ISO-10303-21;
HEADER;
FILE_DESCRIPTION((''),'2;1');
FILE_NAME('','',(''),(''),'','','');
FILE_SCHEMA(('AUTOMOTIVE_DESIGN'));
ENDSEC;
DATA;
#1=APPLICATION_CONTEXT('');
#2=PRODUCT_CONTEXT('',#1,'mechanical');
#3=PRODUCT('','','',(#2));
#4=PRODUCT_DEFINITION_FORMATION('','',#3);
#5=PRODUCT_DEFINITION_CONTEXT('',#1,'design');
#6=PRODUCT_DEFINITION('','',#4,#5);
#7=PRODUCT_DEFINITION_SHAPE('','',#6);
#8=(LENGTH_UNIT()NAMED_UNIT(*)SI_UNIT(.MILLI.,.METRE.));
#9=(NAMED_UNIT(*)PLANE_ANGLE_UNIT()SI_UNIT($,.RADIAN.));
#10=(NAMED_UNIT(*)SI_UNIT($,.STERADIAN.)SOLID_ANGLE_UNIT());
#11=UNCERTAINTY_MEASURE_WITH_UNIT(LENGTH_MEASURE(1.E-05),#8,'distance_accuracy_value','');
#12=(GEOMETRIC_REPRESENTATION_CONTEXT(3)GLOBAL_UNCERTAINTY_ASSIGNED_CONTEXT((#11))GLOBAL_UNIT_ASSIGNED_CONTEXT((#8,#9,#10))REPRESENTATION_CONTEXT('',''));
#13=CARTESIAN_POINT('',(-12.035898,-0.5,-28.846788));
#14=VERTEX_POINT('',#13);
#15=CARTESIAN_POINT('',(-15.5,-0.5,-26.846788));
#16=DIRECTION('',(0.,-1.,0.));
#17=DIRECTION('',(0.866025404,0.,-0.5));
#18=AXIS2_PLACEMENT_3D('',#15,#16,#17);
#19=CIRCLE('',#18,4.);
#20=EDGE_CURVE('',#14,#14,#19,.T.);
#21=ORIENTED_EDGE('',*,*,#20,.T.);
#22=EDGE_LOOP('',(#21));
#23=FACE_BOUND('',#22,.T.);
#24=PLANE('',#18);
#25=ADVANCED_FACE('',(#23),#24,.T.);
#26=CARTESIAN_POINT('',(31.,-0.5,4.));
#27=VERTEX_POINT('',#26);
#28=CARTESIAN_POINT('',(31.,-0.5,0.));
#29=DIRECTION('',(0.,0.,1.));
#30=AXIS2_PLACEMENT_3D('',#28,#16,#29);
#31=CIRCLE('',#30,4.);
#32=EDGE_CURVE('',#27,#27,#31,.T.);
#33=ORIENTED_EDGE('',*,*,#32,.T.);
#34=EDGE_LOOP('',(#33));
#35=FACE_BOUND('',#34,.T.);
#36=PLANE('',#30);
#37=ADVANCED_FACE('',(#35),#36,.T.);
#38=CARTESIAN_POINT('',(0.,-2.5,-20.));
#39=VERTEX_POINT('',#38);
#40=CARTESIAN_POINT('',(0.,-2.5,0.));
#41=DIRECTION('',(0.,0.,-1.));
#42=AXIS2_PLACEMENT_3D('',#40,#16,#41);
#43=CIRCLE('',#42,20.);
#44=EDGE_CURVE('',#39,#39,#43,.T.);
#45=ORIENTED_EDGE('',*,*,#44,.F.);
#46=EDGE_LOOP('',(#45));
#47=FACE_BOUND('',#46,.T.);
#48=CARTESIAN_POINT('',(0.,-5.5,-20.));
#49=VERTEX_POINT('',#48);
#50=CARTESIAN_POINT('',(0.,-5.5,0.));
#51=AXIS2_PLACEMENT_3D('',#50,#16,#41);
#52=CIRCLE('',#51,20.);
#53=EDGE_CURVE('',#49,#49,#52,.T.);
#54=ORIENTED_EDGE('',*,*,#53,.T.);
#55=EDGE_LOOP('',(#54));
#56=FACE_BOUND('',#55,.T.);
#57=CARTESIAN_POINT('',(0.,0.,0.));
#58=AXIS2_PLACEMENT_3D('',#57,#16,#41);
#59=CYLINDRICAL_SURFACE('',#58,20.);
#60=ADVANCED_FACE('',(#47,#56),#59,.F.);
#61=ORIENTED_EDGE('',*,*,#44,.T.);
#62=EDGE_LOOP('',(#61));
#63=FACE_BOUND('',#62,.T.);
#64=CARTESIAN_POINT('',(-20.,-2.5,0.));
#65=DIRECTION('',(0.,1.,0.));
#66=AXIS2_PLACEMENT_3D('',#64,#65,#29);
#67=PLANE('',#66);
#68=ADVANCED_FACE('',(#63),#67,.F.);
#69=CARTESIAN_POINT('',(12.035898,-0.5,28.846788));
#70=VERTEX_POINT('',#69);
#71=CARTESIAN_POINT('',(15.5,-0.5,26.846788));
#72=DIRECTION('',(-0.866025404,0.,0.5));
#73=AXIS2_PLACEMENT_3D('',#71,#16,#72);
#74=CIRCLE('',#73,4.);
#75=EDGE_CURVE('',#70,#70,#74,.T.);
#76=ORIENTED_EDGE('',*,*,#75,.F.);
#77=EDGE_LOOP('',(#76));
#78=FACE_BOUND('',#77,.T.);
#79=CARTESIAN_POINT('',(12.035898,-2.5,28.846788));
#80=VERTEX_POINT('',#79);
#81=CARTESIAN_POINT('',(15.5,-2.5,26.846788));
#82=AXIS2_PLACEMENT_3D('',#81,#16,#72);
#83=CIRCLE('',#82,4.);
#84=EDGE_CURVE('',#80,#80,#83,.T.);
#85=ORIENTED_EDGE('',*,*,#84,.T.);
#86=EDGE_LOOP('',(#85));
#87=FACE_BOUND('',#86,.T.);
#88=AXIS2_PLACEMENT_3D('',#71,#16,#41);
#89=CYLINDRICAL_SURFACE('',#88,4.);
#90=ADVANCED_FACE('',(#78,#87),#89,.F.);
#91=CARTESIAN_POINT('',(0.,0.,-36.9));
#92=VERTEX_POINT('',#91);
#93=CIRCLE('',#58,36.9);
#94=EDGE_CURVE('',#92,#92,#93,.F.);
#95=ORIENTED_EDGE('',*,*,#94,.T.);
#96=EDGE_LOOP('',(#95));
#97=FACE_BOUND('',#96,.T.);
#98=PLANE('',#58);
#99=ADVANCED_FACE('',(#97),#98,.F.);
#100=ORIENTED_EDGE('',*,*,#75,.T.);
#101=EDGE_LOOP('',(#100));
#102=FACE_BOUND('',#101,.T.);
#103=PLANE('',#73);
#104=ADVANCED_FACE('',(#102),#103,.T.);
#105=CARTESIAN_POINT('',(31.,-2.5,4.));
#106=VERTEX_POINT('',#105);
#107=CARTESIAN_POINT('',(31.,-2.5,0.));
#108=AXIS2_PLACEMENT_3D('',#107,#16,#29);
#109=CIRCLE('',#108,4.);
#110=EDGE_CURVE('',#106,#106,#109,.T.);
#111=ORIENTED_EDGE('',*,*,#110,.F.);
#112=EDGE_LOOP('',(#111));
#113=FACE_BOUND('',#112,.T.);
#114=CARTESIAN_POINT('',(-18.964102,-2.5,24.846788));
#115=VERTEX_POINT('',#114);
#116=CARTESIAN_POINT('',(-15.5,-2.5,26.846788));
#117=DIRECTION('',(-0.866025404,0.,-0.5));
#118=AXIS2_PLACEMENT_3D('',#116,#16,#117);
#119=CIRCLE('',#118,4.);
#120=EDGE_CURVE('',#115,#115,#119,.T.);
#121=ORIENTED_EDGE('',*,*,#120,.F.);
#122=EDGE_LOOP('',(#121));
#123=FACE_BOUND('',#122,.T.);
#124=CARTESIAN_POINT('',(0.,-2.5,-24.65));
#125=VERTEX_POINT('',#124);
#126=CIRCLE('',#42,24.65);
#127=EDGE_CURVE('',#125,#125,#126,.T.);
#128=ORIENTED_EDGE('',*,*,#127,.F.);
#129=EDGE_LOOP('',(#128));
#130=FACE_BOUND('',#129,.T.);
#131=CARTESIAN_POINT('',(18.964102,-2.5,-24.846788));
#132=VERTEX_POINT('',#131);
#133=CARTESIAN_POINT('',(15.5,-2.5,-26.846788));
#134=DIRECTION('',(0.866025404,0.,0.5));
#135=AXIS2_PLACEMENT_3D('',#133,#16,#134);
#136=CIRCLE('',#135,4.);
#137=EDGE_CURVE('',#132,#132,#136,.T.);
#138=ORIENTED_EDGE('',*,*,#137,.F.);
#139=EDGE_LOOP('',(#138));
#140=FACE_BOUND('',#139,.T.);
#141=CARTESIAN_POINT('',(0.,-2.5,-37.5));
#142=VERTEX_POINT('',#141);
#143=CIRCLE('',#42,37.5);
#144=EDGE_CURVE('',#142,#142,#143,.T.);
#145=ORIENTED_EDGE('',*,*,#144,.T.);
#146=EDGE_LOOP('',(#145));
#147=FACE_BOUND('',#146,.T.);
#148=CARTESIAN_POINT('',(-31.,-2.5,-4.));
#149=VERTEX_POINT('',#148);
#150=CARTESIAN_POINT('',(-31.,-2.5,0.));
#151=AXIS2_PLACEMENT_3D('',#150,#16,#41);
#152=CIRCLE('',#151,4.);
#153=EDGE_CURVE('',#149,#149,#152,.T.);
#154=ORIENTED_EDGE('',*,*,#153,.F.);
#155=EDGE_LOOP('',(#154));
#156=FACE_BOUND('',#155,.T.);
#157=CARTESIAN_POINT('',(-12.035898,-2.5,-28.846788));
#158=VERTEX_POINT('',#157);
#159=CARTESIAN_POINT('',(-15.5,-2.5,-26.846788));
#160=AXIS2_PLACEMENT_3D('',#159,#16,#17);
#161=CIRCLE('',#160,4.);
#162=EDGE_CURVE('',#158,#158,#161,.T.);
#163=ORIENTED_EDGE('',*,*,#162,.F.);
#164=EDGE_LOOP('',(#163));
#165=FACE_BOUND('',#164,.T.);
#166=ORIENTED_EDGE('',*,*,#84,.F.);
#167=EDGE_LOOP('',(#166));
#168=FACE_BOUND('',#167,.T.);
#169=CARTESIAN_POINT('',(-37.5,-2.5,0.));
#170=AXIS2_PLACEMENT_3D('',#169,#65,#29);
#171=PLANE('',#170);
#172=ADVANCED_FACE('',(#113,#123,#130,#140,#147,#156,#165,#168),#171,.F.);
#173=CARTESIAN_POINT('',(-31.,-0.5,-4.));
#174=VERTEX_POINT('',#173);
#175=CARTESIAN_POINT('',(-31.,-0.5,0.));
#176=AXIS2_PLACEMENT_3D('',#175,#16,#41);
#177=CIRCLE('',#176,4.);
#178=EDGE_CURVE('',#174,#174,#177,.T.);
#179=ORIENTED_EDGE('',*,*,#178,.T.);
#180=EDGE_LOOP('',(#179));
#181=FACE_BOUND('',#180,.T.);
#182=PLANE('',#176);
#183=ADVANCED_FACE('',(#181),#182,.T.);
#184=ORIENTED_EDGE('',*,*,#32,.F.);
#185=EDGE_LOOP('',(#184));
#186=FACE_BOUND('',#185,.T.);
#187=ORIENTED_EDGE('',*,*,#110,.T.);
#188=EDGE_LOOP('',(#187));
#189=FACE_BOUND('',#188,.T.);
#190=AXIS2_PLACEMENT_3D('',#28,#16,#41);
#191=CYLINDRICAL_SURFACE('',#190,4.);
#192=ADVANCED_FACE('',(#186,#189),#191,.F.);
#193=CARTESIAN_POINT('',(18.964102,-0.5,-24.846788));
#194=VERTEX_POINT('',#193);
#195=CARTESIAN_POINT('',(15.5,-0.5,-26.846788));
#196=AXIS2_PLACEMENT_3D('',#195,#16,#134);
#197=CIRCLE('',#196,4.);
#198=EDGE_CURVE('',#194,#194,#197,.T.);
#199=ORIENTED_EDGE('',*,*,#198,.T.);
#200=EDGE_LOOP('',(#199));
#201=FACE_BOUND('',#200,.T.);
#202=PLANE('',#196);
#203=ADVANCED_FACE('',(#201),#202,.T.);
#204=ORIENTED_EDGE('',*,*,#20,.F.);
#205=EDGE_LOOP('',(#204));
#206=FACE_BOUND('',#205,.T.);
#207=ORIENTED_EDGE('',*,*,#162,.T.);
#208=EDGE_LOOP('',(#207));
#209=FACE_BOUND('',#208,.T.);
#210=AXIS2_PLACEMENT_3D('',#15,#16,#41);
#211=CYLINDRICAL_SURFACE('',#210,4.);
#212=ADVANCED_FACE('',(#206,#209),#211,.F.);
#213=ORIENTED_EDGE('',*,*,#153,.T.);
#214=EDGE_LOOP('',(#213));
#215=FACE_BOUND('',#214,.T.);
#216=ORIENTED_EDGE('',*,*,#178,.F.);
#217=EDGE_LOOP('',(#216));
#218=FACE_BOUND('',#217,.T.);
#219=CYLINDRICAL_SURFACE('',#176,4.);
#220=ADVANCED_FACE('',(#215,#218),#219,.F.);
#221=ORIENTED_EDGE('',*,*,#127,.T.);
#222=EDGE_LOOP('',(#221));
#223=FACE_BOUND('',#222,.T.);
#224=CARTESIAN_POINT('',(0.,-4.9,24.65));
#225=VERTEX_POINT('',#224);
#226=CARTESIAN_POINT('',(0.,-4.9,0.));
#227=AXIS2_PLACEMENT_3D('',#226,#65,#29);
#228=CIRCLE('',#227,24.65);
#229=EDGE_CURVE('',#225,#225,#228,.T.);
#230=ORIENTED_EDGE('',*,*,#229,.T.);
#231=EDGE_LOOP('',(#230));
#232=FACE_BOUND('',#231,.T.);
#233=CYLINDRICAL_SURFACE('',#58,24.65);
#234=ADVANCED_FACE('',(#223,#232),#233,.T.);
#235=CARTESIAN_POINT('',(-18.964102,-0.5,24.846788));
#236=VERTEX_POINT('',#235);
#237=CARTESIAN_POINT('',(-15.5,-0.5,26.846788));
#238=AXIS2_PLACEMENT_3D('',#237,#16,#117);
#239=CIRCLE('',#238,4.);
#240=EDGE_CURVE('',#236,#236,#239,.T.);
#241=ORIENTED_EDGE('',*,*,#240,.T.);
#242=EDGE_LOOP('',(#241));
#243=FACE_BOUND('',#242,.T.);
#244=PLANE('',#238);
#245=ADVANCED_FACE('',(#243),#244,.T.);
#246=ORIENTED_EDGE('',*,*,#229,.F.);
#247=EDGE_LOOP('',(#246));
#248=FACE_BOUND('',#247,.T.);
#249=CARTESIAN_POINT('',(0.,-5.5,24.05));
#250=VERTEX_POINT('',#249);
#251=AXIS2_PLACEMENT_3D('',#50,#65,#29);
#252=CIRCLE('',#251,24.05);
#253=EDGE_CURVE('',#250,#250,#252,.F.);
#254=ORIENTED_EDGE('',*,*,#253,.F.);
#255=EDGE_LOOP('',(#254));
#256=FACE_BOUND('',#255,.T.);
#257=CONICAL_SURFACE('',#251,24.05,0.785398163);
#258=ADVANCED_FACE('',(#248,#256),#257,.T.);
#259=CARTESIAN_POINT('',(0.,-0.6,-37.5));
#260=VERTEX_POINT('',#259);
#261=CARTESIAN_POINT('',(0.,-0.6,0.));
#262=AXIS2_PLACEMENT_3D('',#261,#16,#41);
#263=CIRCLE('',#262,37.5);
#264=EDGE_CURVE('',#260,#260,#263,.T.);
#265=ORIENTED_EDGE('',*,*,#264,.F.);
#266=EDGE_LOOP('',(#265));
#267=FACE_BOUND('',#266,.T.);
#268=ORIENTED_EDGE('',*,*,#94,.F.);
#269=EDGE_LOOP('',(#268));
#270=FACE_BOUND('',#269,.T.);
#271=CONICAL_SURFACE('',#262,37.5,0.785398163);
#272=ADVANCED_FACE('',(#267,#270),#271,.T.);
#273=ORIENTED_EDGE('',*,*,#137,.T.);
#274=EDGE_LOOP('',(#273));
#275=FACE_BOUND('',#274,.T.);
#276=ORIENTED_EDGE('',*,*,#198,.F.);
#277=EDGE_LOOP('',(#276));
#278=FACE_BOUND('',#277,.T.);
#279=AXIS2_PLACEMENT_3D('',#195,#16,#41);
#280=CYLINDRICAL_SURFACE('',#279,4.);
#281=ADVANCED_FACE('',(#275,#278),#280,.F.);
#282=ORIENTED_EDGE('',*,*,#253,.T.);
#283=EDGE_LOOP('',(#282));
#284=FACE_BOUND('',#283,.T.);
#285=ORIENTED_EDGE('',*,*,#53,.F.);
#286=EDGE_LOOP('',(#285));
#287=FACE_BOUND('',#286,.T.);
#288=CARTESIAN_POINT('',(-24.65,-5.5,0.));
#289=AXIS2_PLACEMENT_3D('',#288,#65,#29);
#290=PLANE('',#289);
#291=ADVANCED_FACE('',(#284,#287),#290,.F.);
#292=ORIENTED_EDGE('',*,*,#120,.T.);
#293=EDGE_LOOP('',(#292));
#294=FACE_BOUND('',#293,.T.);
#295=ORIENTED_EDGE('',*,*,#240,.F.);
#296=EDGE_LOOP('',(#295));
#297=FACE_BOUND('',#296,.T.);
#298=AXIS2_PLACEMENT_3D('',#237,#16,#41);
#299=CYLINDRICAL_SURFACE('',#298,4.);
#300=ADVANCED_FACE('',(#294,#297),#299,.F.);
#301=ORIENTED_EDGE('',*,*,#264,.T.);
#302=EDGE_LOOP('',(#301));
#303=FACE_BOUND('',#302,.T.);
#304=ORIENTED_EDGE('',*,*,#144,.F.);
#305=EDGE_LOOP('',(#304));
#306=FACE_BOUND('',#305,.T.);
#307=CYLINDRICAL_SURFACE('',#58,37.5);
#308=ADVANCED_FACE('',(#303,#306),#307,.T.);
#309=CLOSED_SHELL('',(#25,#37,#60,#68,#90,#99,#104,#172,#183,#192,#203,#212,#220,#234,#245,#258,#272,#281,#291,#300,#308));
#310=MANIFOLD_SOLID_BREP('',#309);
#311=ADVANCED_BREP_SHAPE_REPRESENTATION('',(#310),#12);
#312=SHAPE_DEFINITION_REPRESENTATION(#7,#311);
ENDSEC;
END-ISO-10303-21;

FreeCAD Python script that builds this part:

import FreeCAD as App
import Part
import Sketcher
from FreeCAD import Vector
Q = App.Units.Quantity


def edges_at(feature, points):
    """Names of the edges that pass closest to the given points."""
    edges = feature.Shape.Edges
    near = lambda p: min(range(len(edges)), key=lambda i: edges[i].distToShape(Part.Vertex(*p))[0])
    return sorted({f"Edge{near(p) + 1}" for p in points})


def add_polygon(sketch, points):
    """Adds a closed chain of lines whose ends are joined by coincident constraints."""
    first, n = sketch.GeometryCount, len(points)
    for a, b in zip(points, points[1:] + points[:1]):
        sketch.addGeometry(Part.LineSegment(App.Vector(*a, 0), App.Vector(*b, 0)), False)
    for i in range(n):
        sketch.addConstraint(Sketcher.Constraint("Coincident", first + i, 2, first + (i + 1) % n, 1))

doc = App.newDocument("Part")
body = doc.addObject("PartDesign::Body", "Body")

# Sketch on XY plane
sketch1 = body.newObject("Sketcher::SketchObject", "Sketch")
sketch1.AttachmentSupport = (doc.getObject("XY_Plane"), [""])
sketch1.MapMode = "FlatFace"
add_polygon(sketch1, [(0, 0), (-37.5, 0), (-37.5, -2.5), (-24.6, -2.5), (-24.6, -5.5), (-20, -5.5), (-20, -2.5), (0, -2.5)])  # lines 0-7
sketch1.addConstraint(Sketcher.Constraint("Horizontal", 0))
sketch1.addConstraint(Sketcher.Constraint("Vertical", 1))
sketch1.addConstraint(Sketcher.Constraint("Horizontal", 2))
sketch1.addConstraint(Sketcher.Constraint("Vertical", 3))
sketch1.addConstraint(Sketcher.Constraint("Horizontal", 4))
sketch1.addConstraint(Sketcher.Constraint("Vertical", 5))
sketch1.addConstraint(Sketcher.Constraint("Horizontal", 6))
sketch1.addConstraint(Sketcher.Constraint("Vertical", 7))
sketch1.addConstraint(Sketcher.Constraint("Coincident", 7, 2, -1, 1))
sketch1.addConstraint(Sketcher.Constraint("Horizontal", 2, 2, 5, 2))
sketch1.addConstraint(Sketcher.Constraint("DistanceX", 6, 1, 6, 2, Q("20 mm")))
sketch1.addConstraint(Sketcher.Constraint("DistanceY", 3, 2, 3, 1, Q("3 mm")))
sketch1.addConstraint(Sketcher.Constraint("DistanceX", 0, 2, 0, 1, Q("37.5 mm")))
sketch1.addConstraint(Sketcher.Constraint("DistanceY", 1, 2, 1, 1, Q("2.5 mm")))
sketch1.addConstraint(Sketcher.Constraint("DistanceX", 2, 1, 2, 2, Q("12.85 mm")))
revolution = body.newObject("PartDesign::Revolution", "Revolution")
revolution.Profile = sketch1
revolution.ReferenceAxis = (sketch1, ["V_Axis"])
revolution.Angle = 360

# Sketch on XZ plane
sketch2 = body.newObject("Sketcher::SketchObject", "Sketch001")
sketch2.AttachmentSupport = (doc.getObject("XZ_Plane"), [""])
sketch2.MapMode = "FlatFace"
sketch2.AttachmentOffset = App.Placement(Vector(0, 0, 2.5), App.Rotation())
sketch2.addGeometry(Part.Circle(Vector(-31, 0, 0), Vector(0, 0, 1), 4), False)
sketch2.addConstraint(Sketcher.Constraint("PointOnObject", 0, 3, -1))
sketch2.addConstraint(Sketcher.Constraint("Diameter", 0, Q("8 mm")))
sketch2.addConstraint(Sketcher.Constraint("DistanceX", 0, 3, -1, 1, Q("31 mm")))
pocket1 = body.newObject("PartDesign::Pocket", "Pocket")
pocket1.Profile = sketch2
pocket1.Length = 2
doc.recompute()

polarpattern = body.newObject("PartDesign::PolarPattern", "PolarPattern")
polarpattern.Originals = [pocket1]
polarpattern.Axis = (doc.getObject("Y_Axis"), [""])
polarpattern.Angle = 360
polarpattern.Occurrences = 6
body.Tip = polarpattern
doc.recompute()

chamfer = body.newObject("PartDesign::Chamfer", "Chamfer")
chamfer.Base = (polarpattern, edges_at(polarpattern, [(24.65, -5.5, 0), (37.5, 0, 0)]))
chamfer.Size = 0.6

doc.recompute()
